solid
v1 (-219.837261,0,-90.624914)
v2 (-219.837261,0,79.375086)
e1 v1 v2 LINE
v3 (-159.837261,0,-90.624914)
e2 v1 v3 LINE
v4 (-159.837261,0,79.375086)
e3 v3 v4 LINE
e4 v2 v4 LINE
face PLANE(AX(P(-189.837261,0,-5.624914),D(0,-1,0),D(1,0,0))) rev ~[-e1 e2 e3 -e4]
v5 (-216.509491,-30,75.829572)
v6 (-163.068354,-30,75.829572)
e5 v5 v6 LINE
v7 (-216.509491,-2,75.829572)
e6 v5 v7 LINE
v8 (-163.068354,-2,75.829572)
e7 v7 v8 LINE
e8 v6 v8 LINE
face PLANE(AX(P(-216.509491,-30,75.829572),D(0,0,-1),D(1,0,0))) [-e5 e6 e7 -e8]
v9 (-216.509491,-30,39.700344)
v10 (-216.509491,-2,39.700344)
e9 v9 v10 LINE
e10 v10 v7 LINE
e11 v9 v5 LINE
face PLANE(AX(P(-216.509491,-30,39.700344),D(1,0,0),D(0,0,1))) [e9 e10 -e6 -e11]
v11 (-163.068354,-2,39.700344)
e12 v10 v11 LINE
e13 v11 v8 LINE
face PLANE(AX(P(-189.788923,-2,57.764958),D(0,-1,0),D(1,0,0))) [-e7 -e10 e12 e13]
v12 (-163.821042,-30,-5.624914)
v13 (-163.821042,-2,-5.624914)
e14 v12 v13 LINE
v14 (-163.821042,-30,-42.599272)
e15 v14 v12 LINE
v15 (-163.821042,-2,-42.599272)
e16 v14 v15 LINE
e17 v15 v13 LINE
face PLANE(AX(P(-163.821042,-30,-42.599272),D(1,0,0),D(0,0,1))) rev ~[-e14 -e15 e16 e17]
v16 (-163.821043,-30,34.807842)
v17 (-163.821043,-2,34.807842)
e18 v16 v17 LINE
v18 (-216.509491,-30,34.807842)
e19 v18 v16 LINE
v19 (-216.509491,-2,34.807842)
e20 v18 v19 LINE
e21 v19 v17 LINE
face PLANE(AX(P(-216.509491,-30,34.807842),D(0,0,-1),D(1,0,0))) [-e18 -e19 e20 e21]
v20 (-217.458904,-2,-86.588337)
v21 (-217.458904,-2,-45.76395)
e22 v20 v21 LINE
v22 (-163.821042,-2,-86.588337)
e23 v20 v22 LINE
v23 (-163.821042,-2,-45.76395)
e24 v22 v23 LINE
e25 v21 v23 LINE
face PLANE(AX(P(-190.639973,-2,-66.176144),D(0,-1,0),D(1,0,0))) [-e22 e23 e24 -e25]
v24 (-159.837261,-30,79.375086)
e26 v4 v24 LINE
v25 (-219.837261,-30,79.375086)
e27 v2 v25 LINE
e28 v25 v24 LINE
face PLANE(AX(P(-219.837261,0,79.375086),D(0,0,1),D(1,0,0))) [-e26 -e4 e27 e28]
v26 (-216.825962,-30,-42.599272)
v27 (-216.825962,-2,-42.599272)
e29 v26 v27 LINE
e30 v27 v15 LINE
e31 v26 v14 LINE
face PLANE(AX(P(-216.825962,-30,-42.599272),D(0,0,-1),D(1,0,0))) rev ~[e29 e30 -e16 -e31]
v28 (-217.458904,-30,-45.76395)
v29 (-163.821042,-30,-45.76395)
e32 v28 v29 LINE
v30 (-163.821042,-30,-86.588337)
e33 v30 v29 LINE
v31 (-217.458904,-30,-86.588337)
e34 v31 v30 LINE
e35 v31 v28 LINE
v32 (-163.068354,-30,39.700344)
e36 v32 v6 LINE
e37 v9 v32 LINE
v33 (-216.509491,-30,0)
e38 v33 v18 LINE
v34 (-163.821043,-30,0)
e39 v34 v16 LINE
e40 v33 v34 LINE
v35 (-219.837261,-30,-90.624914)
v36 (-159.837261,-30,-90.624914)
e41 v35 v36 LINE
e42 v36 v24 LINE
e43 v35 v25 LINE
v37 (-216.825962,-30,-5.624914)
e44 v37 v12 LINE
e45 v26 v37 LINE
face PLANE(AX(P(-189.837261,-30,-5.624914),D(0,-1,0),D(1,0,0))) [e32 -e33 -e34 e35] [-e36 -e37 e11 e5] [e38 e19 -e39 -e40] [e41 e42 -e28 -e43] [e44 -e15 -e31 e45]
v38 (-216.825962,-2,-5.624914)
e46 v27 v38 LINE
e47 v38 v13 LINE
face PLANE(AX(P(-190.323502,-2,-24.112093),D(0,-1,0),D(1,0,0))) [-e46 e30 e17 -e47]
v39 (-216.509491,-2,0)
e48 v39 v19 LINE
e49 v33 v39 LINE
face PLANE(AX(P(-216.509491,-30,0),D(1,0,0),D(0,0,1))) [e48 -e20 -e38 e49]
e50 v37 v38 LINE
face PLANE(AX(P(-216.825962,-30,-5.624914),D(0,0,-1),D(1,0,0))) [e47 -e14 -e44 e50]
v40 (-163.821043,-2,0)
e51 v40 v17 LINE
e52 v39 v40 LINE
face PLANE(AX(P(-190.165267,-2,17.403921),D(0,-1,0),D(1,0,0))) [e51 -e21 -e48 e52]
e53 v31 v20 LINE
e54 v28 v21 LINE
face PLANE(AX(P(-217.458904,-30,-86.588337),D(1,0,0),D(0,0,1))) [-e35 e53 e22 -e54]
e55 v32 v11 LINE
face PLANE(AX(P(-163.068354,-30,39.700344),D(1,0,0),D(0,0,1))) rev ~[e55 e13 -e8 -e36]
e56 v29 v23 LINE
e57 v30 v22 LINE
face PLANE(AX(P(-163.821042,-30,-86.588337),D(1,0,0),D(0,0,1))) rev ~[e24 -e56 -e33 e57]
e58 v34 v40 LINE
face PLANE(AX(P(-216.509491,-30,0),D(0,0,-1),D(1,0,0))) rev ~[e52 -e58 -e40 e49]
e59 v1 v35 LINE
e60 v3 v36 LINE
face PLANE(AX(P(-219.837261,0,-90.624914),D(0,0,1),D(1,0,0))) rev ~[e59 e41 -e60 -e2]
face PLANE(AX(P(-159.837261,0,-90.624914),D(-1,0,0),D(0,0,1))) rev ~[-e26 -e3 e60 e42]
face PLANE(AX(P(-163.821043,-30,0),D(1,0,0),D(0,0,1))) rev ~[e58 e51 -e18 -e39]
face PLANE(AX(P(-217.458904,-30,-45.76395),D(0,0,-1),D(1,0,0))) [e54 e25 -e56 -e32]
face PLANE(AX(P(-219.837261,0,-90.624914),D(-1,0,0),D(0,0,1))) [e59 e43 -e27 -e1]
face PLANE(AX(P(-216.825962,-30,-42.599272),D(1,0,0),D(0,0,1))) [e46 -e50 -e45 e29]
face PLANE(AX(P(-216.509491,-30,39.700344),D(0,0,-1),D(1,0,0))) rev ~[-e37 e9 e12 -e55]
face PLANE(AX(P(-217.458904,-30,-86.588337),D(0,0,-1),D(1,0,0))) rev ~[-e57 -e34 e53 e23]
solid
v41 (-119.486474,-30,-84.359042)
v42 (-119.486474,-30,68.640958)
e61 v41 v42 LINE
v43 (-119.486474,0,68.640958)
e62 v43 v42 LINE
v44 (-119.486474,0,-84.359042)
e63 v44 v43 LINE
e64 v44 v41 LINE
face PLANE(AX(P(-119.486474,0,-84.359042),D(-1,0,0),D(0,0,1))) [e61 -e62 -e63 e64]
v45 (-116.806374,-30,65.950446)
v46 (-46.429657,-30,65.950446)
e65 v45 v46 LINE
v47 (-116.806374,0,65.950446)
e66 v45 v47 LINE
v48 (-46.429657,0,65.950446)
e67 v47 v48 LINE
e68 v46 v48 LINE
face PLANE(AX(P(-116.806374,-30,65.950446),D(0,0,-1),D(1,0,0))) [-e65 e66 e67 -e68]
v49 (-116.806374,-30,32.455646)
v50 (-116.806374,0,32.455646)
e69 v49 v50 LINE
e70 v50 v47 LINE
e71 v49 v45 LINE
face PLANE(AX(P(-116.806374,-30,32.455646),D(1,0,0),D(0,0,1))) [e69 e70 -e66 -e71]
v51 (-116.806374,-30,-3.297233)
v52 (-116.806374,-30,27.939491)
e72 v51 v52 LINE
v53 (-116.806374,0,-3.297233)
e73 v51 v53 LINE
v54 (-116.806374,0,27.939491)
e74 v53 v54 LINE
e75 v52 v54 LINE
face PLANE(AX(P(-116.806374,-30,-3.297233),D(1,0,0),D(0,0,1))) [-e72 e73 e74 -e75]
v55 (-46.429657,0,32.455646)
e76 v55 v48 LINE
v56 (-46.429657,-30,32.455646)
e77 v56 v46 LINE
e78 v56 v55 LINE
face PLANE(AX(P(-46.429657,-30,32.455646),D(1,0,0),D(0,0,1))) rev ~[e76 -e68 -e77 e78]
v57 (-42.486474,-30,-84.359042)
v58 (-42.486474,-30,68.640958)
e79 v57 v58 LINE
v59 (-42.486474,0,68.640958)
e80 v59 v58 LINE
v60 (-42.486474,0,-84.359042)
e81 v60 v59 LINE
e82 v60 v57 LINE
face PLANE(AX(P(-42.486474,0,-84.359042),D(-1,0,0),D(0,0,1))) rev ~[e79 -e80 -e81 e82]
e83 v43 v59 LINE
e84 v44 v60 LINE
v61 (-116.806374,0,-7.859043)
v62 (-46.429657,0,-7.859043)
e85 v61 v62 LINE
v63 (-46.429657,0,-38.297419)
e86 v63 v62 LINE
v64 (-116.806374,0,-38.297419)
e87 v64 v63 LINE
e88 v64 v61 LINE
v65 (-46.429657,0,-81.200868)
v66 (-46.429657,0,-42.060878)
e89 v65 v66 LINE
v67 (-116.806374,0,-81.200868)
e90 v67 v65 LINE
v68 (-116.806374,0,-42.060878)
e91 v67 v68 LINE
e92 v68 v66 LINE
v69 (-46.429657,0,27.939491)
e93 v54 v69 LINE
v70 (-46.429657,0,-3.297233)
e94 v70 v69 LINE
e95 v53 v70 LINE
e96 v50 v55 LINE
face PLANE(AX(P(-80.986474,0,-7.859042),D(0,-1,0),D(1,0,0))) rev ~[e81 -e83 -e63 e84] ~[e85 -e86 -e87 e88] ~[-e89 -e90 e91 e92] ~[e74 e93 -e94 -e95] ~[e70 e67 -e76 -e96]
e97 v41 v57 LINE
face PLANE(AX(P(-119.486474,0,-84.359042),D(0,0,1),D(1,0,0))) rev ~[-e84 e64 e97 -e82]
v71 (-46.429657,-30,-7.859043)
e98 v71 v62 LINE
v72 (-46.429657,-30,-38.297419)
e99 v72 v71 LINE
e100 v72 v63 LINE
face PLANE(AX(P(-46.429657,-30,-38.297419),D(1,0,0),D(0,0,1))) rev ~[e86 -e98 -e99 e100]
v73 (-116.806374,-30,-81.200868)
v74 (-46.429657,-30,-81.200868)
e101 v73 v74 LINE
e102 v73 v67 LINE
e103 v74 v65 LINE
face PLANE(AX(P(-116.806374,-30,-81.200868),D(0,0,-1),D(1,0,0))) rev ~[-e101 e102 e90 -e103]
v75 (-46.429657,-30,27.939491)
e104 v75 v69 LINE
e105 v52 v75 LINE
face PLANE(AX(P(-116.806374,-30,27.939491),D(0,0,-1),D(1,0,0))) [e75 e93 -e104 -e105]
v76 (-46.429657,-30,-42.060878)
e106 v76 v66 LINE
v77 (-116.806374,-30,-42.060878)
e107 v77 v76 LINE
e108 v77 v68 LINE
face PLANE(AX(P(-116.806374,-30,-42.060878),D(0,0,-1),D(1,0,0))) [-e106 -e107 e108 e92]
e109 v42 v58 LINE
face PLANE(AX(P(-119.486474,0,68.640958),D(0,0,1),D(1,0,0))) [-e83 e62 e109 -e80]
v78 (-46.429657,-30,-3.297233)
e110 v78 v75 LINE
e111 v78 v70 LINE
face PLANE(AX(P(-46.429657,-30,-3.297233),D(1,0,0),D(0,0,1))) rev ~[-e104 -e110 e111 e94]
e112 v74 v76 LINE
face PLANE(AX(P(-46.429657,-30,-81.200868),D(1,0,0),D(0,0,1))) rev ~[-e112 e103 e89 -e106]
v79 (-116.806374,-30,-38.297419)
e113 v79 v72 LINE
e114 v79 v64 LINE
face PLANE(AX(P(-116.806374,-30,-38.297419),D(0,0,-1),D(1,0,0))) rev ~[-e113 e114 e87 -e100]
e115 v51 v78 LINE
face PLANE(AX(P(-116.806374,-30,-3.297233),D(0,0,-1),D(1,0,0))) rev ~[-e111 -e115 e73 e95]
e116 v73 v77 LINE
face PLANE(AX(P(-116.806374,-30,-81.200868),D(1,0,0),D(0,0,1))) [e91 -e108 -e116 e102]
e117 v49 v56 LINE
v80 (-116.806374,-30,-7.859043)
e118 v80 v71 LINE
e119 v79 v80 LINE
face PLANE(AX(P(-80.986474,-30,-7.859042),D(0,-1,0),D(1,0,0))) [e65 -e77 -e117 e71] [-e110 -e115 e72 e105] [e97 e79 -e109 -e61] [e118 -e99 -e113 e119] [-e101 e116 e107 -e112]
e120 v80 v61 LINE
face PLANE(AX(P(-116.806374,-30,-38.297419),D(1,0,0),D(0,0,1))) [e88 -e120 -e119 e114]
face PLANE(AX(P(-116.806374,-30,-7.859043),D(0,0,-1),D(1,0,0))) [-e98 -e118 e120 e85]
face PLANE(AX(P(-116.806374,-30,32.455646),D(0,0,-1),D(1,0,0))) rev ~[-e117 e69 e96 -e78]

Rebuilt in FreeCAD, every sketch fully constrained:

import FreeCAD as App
import Part
import Sketcher
from FreeCAD import Vector


def add_polygon(sketch, points):
    """Adds a closed chain of lines whose ends are joined by coincident constraints."""
    first, n = sketch.GeometryCount, len(points)
    for a, b in zip(points, points[1:] + points[:1]):
        sketch.addGeometry(Part.LineSegment(App.Vector(*a, 0), App.Vector(*b, 0)), False)
    for i in range(n):
        sketch.addConstraint(Sketcher.Constraint("Coincident", first + i, 2, first + (i + 1) % n, 1))

doc = App.newDocument("Part")
body = doc.addObject("PartDesign::Body", "Body")

# Sketch on XZ plane
sketch1 = body.newObject("Sketcher::SketchObject", "Sketch")
sketch1.AttachmentSupport = (doc.getObject("XZ_Plane"), [""])
sketch1.MapMode = "FlatFace"
add_polygon(sketch1, [(-220, 79), (-220, -91), (-160, -91), (-160, 79)])  # lines 0-3
sketch1.addConstraint(Sketcher.Constraint("Vertical", 0))
sketch1.addConstraint(Sketcher.Constraint("Horizontal", 1))
sketch1.addConstraint(Sketcher.Constraint("Vertical", 2))
sketch1.addConstraint(Sketcher.Constraint("Horizontal", 3))
sketch1.addConstraint(Sketcher.Constraint("DistanceX", 1, 1, 1, 2, 60.0))
sketch1.addConstraint(Sketcher.Constraint("DistanceY", 0, 2, 0, 1, 170.0))
sketch1.addConstraint(Sketcher.Constraint("DistanceX", 0, 2, -1, 1, 219.837261))
sketch1.addConstraint(Sketcher.Constraint("DistanceY", 0, 2, -1, 1, 90.624914))
pad1 = body.newObject("PartDesign::Pad", "Pad")
pad1.Profile = sketch1
pad1.Length = 30

# Sketch on XZ plane
sketch2 = body.newObject("Sketcher::SketchObject", "Sketch001")
sketch2.AttachmentSupport = (doc.getObject("XZ_Plane"), [""])
sketch2.MapMode = "FlatFace"
sketch2.AttachmentOffset = App.Placement(Vector(0, 0, 30), App.Rotation())
add_polygon(sketch2, [(-217, 76), (-217, 40), (-163, 40), (-163, 76)])  # lines 0-3
add_polygon(sketch2, [(-217, 35), (-217, 0), (-164, 0), (-164, 35)])  # lines 4-7
add_polygon(sketch2, [(-217, -6), (-217, -43), (-164, -43), (-164, -6)])  # lines 8-11
add_polygon(sketch2, [(-217, -46), (-217, -87), (-164, -87), (-164, -46)])  # lines 12-15
sketch2.addConstraint(Sketcher.Constraint("Vertical", 0))
sketch2.addConstraint(Sketcher.Constraint("Horizontal", 1))
sketch2.addConstraint(Sketcher.Constraint("Vertical", 2))
sketch2.addConstraint(Sketcher.Constraint("Horizontal", 3))
sketch2.addConstraint(Sketcher.Constraint("Vertical", 4))
sketch2.addConstraint(Sketcher.Constraint("Horizontal", 5))
sketch2.addConstraint(Sketcher.Constraint("Vertical", 6))
sketch2.addConstraint(Sketcher.Constraint("Horizontal", 7))
sketch2.addConstraint(Sketcher.Constraint("Vertical", 8))
sketch2.addConstraint(Sketcher.Constraint("Horizontal", 9))
sketch2.addConstraint(Sketcher.Constraint("Vertical", 10))
sketch2.addConstraint(Sketcher.Constraint("Horizontal", 11))
sketch2.addConstraint(Sketcher.Constraint("Vertical", 12))
sketch2.addConstraint(Sketcher.Constraint("Horizontal", 13))
sketch2.addConstraint(Sketcher.Constraint("Vertical", 14))
sketch2.addConstraint(Sketcher.Constraint("Horizontal", 15))
sketch2.addConstraint(Sketcher.Constraint("PointOnObject", 4, 2, -1))
sketch2.addConstraint(Sketcher.Constraint("Vertical", 3, 2, 4, 2))
sketch2.addConstraint(Sketcher.Constraint("Vertical", 6, 2, 9, 2))
sketch2.addConstraint(Sketcher.Constraint("Vertical", 10, 2, 13, 2))
sketch2.addConstraint(Sketcher.Constraint("DistanceX", 5, 1, 5, 2, 52.688449))
sketch2.addConstraint(Sketcher.Constraint("DistanceX", 9, 1, 9, 2, 53.00492))
sketch2.addConstraint(Sketcher.Constraint("DistanceX", 13, 1, 13, 2, 53.637862))
sketch2.addConstraint(Sketcher.Constraint("DistanceY", 0, 2, 0, 1, 36.129229))
sketch2.addConstraint(Sketcher.Constraint("DistanceY", 6, 2, 1, 2, 4.892502))
sketch2.addConstraint(Sketcher.Constraint("DistanceX", 1, 1, 1, 2, 53.441137))
sketch2.addConstraint(Sketcher.Constraint("DistanceY", 4, 2, 4, 1, 34.807842))
sketch2.addConstraint(Sketcher.Constraint("DistanceY", 8, 2, 8, 1, 36.974358))
sketch2.addConstraint(Sketcher.Constraint("DistanceY", 12, 2, 12, 1, 40.824387))
sketch2.addConstraint(Sketcher.Constraint("DistanceX", 0, 2, -1, 1, 216.509491))
sketch2.addConstraint(Sketcher.Constraint("DistanceY", 14, 2, -1, 1, 45.76395))
sketch2.addConstraint(Sketcher.Constraint("DistanceY", 14, 2, 9, 2, 3.164679))
pocket1 = body.newObject("PartDesign::Pocket", "Pocket")
pocket1.Profile = sketch2
pocket1.Length = 28
body2 = doc.addObject("PartDesign::Body", "Body001")

# Sketch on XZ plane
sketch3 = body2.newObject("Sketcher::SketchObject", "Sketch002")
sketch3.AttachmentSupport = (doc.getObject("XZ_Plane001"), [""])
sketch3.MapMode = "FlatFace"
add_polygon(sketch3, [(-119, 69), (-119, -84), (-42, -84), (-42, 69)])  # lines 0-3
sketch3.addConstraint(Sketcher.Constraint("Vertical", 0))
sketch3.addConstraint(Sketcher.Constraint("Horizontal", 1))
sketch3.addConstraint(Sketcher.Constraint("Vertical", 2))
sketch3.addConstraint(Sketcher.Constraint("Horizontal", 3))
sketch3.addConstraint(Sketcher.Constraint("DistanceX", 1, 1, 1, 2, 77.0))
sketch3.addConstraint(Sketcher.Constraint("DistanceY", 0, 2, 0, 1, 153.0))
sketch3.addConstraint(Sketcher.Constraint("DistanceX", 0, 2, -1, 1, 119.486474))
sketch3.addConstraint(Sketcher.Constraint("DistanceY", 0, 2, -1, 1, 84.359042))
pad2 = body2.newObject("PartDesign::Pad", "Pad001")
pad2.Profile = sketch3
pad2.Length = 30

# Sketch on XZ plane
sketch4 = body2.newObject("Sketcher::SketchObject", "Sketch003")
sketch4.AttachmentSupport = (doc.getObject("XZ_Plane001"), [""])
sketch4.MapMode = "FlatFace"
sketch4.AttachmentOffset = App.Placement(Vector(0, 0, 30), App.Rotation())
add_polygon(sketch4, [(-117, 66), (-117, 32), (-46, 32), (-46, 66)])  # lines 0-3
add_polygon(sketch4, [(-117, 28), (-117, -3), (-46, -3), (-46, 28)])  # lines 4-7
add_polygon(sketch4, [(-117, -8), (-117, -38), (-46, -38), (-46, -8)])  # lines 8-11
add_polygon(sketch4, [(-117, -42), (-117, -81), (-46, -81), (-46, -42)])  # lines 12-15
sketch4.addConstraint(Sketcher.Constraint("Vertical", 0))
sketch4.addConstraint(Sketcher.Constraint("Horizontal", 1))
sketch4.addConstraint(Sketcher.Constraint("Vertical", 2))
sketch4.addConstraint(Sketcher.Constraint("Horizontal", 3))
sketch4.addConstraint(Sketcher.Constraint("Vertical", 4))
sketch4.addConstraint(Sketcher.Constraint("Horizontal", 5))
sketch4.addConstraint(Sketcher.Constraint("Vertical", 6))
sketch4.addConstraint(Sketcher.Constraint("Horizontal", 7))
sketch4.addConstraint(Sketcher.Constraint("Vertical", 8))
sketch4.addConstraint(Sketcher.Constraint("Horizontal", 9))
sketch4.addConstraint(Sketcher.Constraint("Vertical", 10))
sketch4.addConstraint(Sketcher.Constraint("Horizontal", 11))
sketch4.addConstraint(Sketcher.Constraint("Vertical", 12))
sketch4.addConstraint(Sketcher.Constraint("Horizontal", 13))
sketch4.addConstraint(Sketcher.Constraint("Vertical", 14))
sketch4.addConstraint(Sketcher.Constraint("Horizontal", 15))
sketch4.addConstraint(Sketcher.Constraint("Vertical", 3, 2, 4, 2))
sketch4.addConstraint(Sketcher.Constraint("Vertical", 2, 2, 5, 2))
sketch4.addConstraint(Sketcher.Constraint("Vertical", 7, 2, 8, 2))
sketch4.addConstraint(Sketcher.Constraint("Vertical", 6, 2, 9, 2))
sketch4.addConstraint(Sketcher.Constraint("Vertical", 11, 2, 12, 2))
sketch4.addConstraint(Sketcher.Constraint("Vertical", 10, 2, 13, 2))
sketch4.addConstraint(Sketcher.Constraint("DistanceY", 0, 2, 0, 1, 33.4948))
sketch4.addConstraint(Sketcher.Constraint("DistanceY", 12, 2, 12, 1, 39.13999))
sketch4.addConstraint(Sketcher.Constraint("DistanceX", 1, 1, 1, 2, 70.376717))
sketch4.addConstraint(Sketcher.Constraint("DistanceY", 4, 2, 4, 1, 31.236724))
sketch4.addConstraint(Sketcher.Constraint("DistanceY", 8, 2, 8, 1, 30.438377))
sketch4.addConstraint(Sketcher.Constraint("DistanceY", -1, 1, 6, 2, 27.939491))
sketch4.addConstraint(Sketcher.Constraint("DistanceY", 8, 2, -1, 1, 38.297419))
sketch4.addConstraint(Sketcher.Constraint("DistanceY", 12, 2, -1, 1, 81.200868))
sketch4.addConstraint(Sketcher.Constraint("DistanceY", 4, 2, 0, 2, 35.752879))
sketch4.addConstraint(Sketcher.Constraint("DistanceX", 0, 2, -1, 1, 116.806374))
pocket2 = body2.newObject("PartDesign::Pocket", "Pocket001")
pocket2.Profile = sketch4
pocket2.Length = 30

doc.recompute()
